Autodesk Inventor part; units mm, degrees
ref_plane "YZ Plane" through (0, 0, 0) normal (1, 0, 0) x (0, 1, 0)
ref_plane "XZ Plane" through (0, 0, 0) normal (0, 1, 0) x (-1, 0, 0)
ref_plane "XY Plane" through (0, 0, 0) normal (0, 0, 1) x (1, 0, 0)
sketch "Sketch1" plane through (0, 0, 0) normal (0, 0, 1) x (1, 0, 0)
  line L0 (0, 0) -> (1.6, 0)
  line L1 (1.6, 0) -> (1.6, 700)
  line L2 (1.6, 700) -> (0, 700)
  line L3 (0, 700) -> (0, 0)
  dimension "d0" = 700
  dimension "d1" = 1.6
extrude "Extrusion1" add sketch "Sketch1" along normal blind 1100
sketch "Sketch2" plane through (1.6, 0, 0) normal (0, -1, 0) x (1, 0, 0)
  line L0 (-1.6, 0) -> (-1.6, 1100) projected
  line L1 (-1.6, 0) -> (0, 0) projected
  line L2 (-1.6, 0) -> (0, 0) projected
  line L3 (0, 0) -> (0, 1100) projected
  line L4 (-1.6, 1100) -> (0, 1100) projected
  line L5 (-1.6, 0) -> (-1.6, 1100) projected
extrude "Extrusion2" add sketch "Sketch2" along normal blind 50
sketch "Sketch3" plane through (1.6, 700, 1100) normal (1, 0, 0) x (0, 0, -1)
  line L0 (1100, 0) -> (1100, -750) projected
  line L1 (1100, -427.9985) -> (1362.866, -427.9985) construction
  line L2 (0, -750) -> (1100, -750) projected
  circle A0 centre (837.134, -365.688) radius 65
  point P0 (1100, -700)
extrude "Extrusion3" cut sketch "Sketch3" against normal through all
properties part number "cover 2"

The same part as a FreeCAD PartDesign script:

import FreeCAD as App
import Part
import Sketcher
Q = App.Units.Quantity


def add_polygon(sketch, points):
    """Adds a closed chain of lines whose ends are joined by coincident constraints."""
    first, n = sketch.GeometryCount, len(points)
    for a, b in zip(points, points[1:] + points[:1]):
        sketch.addGeometry(Part.LineSegment(App.Vector(*a, 0), App.Vector(*b, 0)), False)
    for i in range(n):
        sketch.addConstraint(Sketcher.Constraint("Coincident", first + i, 2, first + (i + 1) % n, 1))

doc = App.newDocument("Part")
body = doc.addObject("PartDesign::Body", "Body")

# Sketch on XY plane
sketch1 = body.newObject("Sketcher::SketchObject", "Sketch")
sketch1.AttachmentSupport = (doc.getObject("XY_Plane"), [""])
sketch1.MapMode = "FlatFace"
add_polygon(sketch1, [(0, 700), (0, 0), (1.6, 0), (1.6, 700)])  # lines 0-3
sketch1.addConstraint(Sketcher.Constraint("Vertical", 0))
sketch1.addConstraint(Sketcher.Constraint("Horizontal", 1))
sketch1.addConstraint(Sketcher.Constraint("Vertical", 2))
sketch1.addConstraint(Sketcher.Constraint("Horizontal", 3))
sketch1.addConstraint(Sketcher.Constraint("Coincident", 0, 2, -1, 1))
sketch1.addConstraint(Sketcher.Constraint("DistanceY", 0, 2, 0, 1, Q("700 mm")))
sketch1.addConstraint(Sketcher.Constraint("DistanceX", 1, 1, 1, 2, Q("1.6 mm")))
pad1 = body.newObject("PartDesign::Pad", "Pad")
pad1.Profile = sketch1
pad1.Length = 1100

# Sketch on XZ plane
sketch2 = body.newObject("Sketcher::SketchObject", "Sketch001")
sketch2.AttachmentSupport = (doc.getObject("XZ_Plane"), [""])
sketch2.MapMode = "FlatFace"
add_polygon(sketch2, [(0, 1100), (0, 0), (1.6, 0), (1.6, 1100)])  # lines 0-3
sketch2.addConstraint(Sketcher.Constraint("Vertical", 0))
sketch2.addConstraint(Sketcher.Constraint("Horizontal", 1))
sketch2.addConstraint(Sketcher.Constraint("Vertical", 2))
sketch2.addConstraint(Sketcher.Constraint("Horizontal", 3))
sketch2.addConstraint(Sketcher.Constraint("Coincident", 0, 2, -1, 1))
sketch2.addConstraint(Sketcher.Constraint("DistanceY", 0, 2, 0, 1, Q("1100 mm")))
sketch2.addConstraint(Sketcher.Constraint("DistanceX", 1, 1, 1, 2, Q("1.6 mm")))
pad2 = body.newObject("PartDesign::Pad", "Pad001")
pad2.Profile = sketch2
pad2.Length = 50

# Sketch on YZ plane
sketch3 = body.newObject("Sketcher::SketchObject", "Sketch002")
sketch3.AttachmentSupport = (doc.getObject("YZ_Plane"), [""])
sketch3.MapMode = "FlatFace"
sketch3.AttachmentOffset = App.Placement(App.Vector(0, 0, 1.6), App.Rotation())
sketch3.addGeometry(Part.Circle(App.Vector(334, 263, 0), App.Vector(0, 0, 1), 65), False)
sketch3.addConstraint(Sketcher.Constraint("Diameter", 0, Q("130 mm")))
sketch3.addConstraint(Sketcher.Constraint("DistanceX", -1, 1, 0, 3, Q("334.312 mm")))
sketch3.addConstraint(Sketcher.Constraint("DistanceY", -1, 1, 0, 3, Q("262.866 mm")))
pocket1 = body.newObject("PartDesign::Pocket", "Pocket")
pocket1.Profile = sketch3
pocket1.Type = "ThroughAll"

doc.recompute()
